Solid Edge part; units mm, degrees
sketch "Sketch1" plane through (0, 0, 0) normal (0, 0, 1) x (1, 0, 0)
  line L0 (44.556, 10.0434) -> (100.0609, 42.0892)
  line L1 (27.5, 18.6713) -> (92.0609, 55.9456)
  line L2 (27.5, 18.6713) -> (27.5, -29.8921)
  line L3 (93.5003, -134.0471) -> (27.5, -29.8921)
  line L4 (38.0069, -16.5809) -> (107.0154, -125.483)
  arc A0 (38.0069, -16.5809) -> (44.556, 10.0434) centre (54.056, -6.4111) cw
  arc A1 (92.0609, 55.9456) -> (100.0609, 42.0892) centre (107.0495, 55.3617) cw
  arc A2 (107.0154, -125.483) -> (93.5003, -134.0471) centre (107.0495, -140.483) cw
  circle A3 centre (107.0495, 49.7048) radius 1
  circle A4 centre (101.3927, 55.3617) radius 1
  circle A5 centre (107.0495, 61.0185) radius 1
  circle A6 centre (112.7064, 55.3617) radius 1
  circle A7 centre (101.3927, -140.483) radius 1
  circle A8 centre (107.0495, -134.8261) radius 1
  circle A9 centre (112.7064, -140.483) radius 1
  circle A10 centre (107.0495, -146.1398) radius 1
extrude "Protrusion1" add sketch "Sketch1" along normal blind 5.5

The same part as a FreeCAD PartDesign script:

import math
import FreeCAD as App
import Part
import Sketcher
Q = App.Units.Quantity

doc = App.newDocument("Part")
body = doc.addObject("PartDesign::Body", "Body")

sketch1 = body.newObject("Sketcher::SketchObject", "Sketch")
sketch1.AttachmentSupport = (doc.getObject("XY_Plane"), [""])
sketch1.MapMode = "FlatFace"
sketch1.addGeometry(Part.ArcOfCircle(Part.Circle(App.Vector(54.1, -6.4, 0), App.Vector(0, 0, 1), 19), math.radians(120), math.radians(212)), False)
sketch1.addGeometry(Part.LineSegment(App.Vector(44.6, 10, 0), App.Vector(100.1, 42.1, 0)), False)
sketch1.addGeometry(Part.ArcOfCircle(Part.Circle(App.Vector(107, 55.4, 0), App.Vector(0, 0, 1), 15), math.radians(-118), math.radians(178)), False)
sketch1.addGeometry(Part.LineSegment(App.Vector(92.1, 55.9, 0), App.Vector(27.5, 18.7, 0)), False)
sketch1.addGeometry(Part.LineSegment(App.Vector(27.5, 18.7, 0), App.Vector(27.5, -29.9, 0)), False)
sketch1.addGeometry(Part.LineSegment(App.Vector(27.5, -29.9, 0), App.Vector(93.5, -134, 0)), False)
sketch1.addGeometry(Part.ArcOfCircle(Part.Circle(App.Vector(107, -140.5, 0), App.Vector(0, 0, 1), 15), math.radians(155), math.radians(450)), False)
sketch1.addGeometry(Part.LineSegment(App.Vector(107, -125.5, 0), App.Vector(38, -16.6, 0)), False)
sketch1.addGeometry(Part.Circle(App.Vector(107, -146.1, 0), App.Vector(0, 0, 1), 1), False)
sketch1.addGeometry(Part.Circle(App.Vector(101.4, -140.5, 0), App.Vector(0, 0, 1), 1), False)
sketch1.addGeometry(Part.Circle(App.Vector(107, -134.8, 0), App.Vector(0, 0, 1), 1), False)
sketch1.addGeometry(Part.Circle(App.Vector(112.7, -140.5, 0), App.Vector(0, 0, 1), 1), False)
sketch1.addGeometry(Part.Circle(App.Vector(101.4, 55.4, 0), App.Vector(0, 0, 1), 1), False)
sketch1.addGeometry(Part.Circle(App.Vector(107, 49.7, 0), App.Vector(0, 0, 1), 1), False)
sketch1.addGeometry(Part.Circle(App.Vector(107, 61, 0), App.Vector(0, 0, 1), 1), False)
sketch1.addGeometry(Part.Circle(App.Vector(112.7, 55.4, 0), App.Vector(0, 0, 1), 1), False)
sketch1.addConstraint(Sketcher.Constraint("Tangent", 0, 1, 1, 1))
sketch1.addConstraint(Sketcher.Constraint("Coincident", 1, 2, 2, 1))
sketch1.addConstraint(Sketcher.Constraint("Coincident", 2, 2, 3, 1))
sketch1.addConstraint(Sketcher.Constraint("Coincident", 3, 2, 4, 1))
sketch1.addConstraint(Sketcher.Constraint("Coincident", 4, 2, 5, 1))
sketch1.addConstraint(Sketcher.Constraint("Coincident", 5, 2, 6, 1))
sketch1.addConstraint(Sketcher.Constraint("Coincident", 6, 2, 7, 1))
sketch1.addConstraint(Sketcher.Constraint("Tangent", 7, 2, 0, 2))
sketch1.addConstraint(Sketcher.Constraint("Vertical", 4))
sketch1.addConstraint(Sketcher.Constraint("Equal", 2, 6))
sketch1.addConstraint(Sketcher.Constraint("Equal", 8, 9))
sketch1.addConstraint(Sketcher.Constraint("Equal", 9, 10))
sketch1.addConstraint(Sketcher.Constraint("Equal", 10, 11))
sketch1.addConstraint(Sketcher.Constraint("Equal", 11, 12))
sketch1.addConstraint(Sketcher.Constraint("Equal", 12, 13))
sketch1.addConstraint(Sketcher.Constraint("Equal", 13, 14))
sketch1.addConstraint(Sketcher.Constraint("Equal", 14, 15))
sketch1.addConstraint(Sketcher.Constraint("Parallel", 1, 3))
sketch1.addConstraint(Sketcher.Constraint("Parallel", 5, 7))
sketch1.addConstraint(Sketcher.Constraint("Horizontal", 6, 3, 9, 3))
sketch1.addConstraint(Sketcher.Constraint("Horizontal", 9, 3, 11, 3))
sketch1.addConstraint(Sketcher.Constraint("Horizontal", 2, 3, 12, 3))
sketch1.addConstraint(Sketcher.Constraint("Horizontal", 12, 3, 15, 3))
sketch1.addConstraint(Sketcher.Constraint("Vertical", 2, 3, 6, 3))
sketch1.addConstraint(Sketcher.Constraint("Vertical", 6, 3, 8, 3))
sketch1.addConstraint(Sketcher.Constraint("Vertical", 8, 3, 10, 3))
sketch1.addConstraint(Sketcher.Constraint("Vertical", 9, 3, 12, 3))
sketch1.addConstraint(Sketcher.Constraint("Vertical", 10, 3, 13, 3))
sketch1.addConstraint(Sketcher.Constraint("Vertical", 13, 3, 14, 3))
sketch1.addConstraint(Sketcher.Constraint("Vertical", 11, 3, 15, 3))
sketch1.addConstraint(Sketcher.Constraint("Diameter", 8, 2.0))
sketch1.addConstraint(Sketcher.Constraint("Radius", 0, 19.0))
sketch1.addConstraint(Sketcher.Constraint("Radius", 2, 15.0))
sketch1.addConstraint(Sketcher.Constraint("Angle", 1, Q("30 deg")))
sketch1.addConstraint(Sketcher.Constraint("DistanceX", 2, 2, 1, 2, 8.0))
sketch1.addConstraint(Sketcher.Constraint("DistanceX", -1, 1, 3, 2, 27.5))
sketch1.addConstraint(Sketcher.Constraint("DistanceY", 7, 2, 1, 2, 58.67))
sketch1.addConstraint(Sketcher.Constraint("DistanceY", 4, 2, 4, 1, 48.5634))
sketch1.addConstraint(Sketcher.Constraint("DistanceX", -1, 1, 0, 3, 54.056))
sketch1.addConstraint(Sketcher.Constraint("DistanceY", 0, 3, -1, 1, 6.411))
sketch1.addConstraint(Sketcher.Constraint("DistanceY", 6, 3, -1, 1, 140.483))
sketch1.addConstraint(Sketcher.Constraint("DistanceY", 10, 3, -1, 1, 134.826))
sketch1.addConstraint(Sketcher.Constraint("DistanceX", -1, 1, 1, 2, 100.061))
sketch1.addConstraint(Sketcher.Constraint("DistanceY", 4, 2, -1, 1, 29.892))
sketch1.addConstraint(Sketcher.Constraint("DistanceX", 6, 3, 11, 3, 5.657))
sketch1.addConstraint(Sketcher.Constraint("DistanceY", 13, 3, 2, 3, 5.657))
sketch1.addConstraint(Sketcher.Constraint("DistanceY", 2, 2, 14, 3, 5.073))
sketch1.addConstraint(Sketcher.Constraint("DistanceY", 8, 3, -1, 1, 146.1398))
sketch1.addConstraint(Sketcher.Constraint("DistanceX", -1, 1, 9, 3, 101.3927))
pad1 = body.newObject("PartDesign::Pad", "Pad")
pad1.Profile = sketch1
pad1.Length = 5.5

doc.recompute()
